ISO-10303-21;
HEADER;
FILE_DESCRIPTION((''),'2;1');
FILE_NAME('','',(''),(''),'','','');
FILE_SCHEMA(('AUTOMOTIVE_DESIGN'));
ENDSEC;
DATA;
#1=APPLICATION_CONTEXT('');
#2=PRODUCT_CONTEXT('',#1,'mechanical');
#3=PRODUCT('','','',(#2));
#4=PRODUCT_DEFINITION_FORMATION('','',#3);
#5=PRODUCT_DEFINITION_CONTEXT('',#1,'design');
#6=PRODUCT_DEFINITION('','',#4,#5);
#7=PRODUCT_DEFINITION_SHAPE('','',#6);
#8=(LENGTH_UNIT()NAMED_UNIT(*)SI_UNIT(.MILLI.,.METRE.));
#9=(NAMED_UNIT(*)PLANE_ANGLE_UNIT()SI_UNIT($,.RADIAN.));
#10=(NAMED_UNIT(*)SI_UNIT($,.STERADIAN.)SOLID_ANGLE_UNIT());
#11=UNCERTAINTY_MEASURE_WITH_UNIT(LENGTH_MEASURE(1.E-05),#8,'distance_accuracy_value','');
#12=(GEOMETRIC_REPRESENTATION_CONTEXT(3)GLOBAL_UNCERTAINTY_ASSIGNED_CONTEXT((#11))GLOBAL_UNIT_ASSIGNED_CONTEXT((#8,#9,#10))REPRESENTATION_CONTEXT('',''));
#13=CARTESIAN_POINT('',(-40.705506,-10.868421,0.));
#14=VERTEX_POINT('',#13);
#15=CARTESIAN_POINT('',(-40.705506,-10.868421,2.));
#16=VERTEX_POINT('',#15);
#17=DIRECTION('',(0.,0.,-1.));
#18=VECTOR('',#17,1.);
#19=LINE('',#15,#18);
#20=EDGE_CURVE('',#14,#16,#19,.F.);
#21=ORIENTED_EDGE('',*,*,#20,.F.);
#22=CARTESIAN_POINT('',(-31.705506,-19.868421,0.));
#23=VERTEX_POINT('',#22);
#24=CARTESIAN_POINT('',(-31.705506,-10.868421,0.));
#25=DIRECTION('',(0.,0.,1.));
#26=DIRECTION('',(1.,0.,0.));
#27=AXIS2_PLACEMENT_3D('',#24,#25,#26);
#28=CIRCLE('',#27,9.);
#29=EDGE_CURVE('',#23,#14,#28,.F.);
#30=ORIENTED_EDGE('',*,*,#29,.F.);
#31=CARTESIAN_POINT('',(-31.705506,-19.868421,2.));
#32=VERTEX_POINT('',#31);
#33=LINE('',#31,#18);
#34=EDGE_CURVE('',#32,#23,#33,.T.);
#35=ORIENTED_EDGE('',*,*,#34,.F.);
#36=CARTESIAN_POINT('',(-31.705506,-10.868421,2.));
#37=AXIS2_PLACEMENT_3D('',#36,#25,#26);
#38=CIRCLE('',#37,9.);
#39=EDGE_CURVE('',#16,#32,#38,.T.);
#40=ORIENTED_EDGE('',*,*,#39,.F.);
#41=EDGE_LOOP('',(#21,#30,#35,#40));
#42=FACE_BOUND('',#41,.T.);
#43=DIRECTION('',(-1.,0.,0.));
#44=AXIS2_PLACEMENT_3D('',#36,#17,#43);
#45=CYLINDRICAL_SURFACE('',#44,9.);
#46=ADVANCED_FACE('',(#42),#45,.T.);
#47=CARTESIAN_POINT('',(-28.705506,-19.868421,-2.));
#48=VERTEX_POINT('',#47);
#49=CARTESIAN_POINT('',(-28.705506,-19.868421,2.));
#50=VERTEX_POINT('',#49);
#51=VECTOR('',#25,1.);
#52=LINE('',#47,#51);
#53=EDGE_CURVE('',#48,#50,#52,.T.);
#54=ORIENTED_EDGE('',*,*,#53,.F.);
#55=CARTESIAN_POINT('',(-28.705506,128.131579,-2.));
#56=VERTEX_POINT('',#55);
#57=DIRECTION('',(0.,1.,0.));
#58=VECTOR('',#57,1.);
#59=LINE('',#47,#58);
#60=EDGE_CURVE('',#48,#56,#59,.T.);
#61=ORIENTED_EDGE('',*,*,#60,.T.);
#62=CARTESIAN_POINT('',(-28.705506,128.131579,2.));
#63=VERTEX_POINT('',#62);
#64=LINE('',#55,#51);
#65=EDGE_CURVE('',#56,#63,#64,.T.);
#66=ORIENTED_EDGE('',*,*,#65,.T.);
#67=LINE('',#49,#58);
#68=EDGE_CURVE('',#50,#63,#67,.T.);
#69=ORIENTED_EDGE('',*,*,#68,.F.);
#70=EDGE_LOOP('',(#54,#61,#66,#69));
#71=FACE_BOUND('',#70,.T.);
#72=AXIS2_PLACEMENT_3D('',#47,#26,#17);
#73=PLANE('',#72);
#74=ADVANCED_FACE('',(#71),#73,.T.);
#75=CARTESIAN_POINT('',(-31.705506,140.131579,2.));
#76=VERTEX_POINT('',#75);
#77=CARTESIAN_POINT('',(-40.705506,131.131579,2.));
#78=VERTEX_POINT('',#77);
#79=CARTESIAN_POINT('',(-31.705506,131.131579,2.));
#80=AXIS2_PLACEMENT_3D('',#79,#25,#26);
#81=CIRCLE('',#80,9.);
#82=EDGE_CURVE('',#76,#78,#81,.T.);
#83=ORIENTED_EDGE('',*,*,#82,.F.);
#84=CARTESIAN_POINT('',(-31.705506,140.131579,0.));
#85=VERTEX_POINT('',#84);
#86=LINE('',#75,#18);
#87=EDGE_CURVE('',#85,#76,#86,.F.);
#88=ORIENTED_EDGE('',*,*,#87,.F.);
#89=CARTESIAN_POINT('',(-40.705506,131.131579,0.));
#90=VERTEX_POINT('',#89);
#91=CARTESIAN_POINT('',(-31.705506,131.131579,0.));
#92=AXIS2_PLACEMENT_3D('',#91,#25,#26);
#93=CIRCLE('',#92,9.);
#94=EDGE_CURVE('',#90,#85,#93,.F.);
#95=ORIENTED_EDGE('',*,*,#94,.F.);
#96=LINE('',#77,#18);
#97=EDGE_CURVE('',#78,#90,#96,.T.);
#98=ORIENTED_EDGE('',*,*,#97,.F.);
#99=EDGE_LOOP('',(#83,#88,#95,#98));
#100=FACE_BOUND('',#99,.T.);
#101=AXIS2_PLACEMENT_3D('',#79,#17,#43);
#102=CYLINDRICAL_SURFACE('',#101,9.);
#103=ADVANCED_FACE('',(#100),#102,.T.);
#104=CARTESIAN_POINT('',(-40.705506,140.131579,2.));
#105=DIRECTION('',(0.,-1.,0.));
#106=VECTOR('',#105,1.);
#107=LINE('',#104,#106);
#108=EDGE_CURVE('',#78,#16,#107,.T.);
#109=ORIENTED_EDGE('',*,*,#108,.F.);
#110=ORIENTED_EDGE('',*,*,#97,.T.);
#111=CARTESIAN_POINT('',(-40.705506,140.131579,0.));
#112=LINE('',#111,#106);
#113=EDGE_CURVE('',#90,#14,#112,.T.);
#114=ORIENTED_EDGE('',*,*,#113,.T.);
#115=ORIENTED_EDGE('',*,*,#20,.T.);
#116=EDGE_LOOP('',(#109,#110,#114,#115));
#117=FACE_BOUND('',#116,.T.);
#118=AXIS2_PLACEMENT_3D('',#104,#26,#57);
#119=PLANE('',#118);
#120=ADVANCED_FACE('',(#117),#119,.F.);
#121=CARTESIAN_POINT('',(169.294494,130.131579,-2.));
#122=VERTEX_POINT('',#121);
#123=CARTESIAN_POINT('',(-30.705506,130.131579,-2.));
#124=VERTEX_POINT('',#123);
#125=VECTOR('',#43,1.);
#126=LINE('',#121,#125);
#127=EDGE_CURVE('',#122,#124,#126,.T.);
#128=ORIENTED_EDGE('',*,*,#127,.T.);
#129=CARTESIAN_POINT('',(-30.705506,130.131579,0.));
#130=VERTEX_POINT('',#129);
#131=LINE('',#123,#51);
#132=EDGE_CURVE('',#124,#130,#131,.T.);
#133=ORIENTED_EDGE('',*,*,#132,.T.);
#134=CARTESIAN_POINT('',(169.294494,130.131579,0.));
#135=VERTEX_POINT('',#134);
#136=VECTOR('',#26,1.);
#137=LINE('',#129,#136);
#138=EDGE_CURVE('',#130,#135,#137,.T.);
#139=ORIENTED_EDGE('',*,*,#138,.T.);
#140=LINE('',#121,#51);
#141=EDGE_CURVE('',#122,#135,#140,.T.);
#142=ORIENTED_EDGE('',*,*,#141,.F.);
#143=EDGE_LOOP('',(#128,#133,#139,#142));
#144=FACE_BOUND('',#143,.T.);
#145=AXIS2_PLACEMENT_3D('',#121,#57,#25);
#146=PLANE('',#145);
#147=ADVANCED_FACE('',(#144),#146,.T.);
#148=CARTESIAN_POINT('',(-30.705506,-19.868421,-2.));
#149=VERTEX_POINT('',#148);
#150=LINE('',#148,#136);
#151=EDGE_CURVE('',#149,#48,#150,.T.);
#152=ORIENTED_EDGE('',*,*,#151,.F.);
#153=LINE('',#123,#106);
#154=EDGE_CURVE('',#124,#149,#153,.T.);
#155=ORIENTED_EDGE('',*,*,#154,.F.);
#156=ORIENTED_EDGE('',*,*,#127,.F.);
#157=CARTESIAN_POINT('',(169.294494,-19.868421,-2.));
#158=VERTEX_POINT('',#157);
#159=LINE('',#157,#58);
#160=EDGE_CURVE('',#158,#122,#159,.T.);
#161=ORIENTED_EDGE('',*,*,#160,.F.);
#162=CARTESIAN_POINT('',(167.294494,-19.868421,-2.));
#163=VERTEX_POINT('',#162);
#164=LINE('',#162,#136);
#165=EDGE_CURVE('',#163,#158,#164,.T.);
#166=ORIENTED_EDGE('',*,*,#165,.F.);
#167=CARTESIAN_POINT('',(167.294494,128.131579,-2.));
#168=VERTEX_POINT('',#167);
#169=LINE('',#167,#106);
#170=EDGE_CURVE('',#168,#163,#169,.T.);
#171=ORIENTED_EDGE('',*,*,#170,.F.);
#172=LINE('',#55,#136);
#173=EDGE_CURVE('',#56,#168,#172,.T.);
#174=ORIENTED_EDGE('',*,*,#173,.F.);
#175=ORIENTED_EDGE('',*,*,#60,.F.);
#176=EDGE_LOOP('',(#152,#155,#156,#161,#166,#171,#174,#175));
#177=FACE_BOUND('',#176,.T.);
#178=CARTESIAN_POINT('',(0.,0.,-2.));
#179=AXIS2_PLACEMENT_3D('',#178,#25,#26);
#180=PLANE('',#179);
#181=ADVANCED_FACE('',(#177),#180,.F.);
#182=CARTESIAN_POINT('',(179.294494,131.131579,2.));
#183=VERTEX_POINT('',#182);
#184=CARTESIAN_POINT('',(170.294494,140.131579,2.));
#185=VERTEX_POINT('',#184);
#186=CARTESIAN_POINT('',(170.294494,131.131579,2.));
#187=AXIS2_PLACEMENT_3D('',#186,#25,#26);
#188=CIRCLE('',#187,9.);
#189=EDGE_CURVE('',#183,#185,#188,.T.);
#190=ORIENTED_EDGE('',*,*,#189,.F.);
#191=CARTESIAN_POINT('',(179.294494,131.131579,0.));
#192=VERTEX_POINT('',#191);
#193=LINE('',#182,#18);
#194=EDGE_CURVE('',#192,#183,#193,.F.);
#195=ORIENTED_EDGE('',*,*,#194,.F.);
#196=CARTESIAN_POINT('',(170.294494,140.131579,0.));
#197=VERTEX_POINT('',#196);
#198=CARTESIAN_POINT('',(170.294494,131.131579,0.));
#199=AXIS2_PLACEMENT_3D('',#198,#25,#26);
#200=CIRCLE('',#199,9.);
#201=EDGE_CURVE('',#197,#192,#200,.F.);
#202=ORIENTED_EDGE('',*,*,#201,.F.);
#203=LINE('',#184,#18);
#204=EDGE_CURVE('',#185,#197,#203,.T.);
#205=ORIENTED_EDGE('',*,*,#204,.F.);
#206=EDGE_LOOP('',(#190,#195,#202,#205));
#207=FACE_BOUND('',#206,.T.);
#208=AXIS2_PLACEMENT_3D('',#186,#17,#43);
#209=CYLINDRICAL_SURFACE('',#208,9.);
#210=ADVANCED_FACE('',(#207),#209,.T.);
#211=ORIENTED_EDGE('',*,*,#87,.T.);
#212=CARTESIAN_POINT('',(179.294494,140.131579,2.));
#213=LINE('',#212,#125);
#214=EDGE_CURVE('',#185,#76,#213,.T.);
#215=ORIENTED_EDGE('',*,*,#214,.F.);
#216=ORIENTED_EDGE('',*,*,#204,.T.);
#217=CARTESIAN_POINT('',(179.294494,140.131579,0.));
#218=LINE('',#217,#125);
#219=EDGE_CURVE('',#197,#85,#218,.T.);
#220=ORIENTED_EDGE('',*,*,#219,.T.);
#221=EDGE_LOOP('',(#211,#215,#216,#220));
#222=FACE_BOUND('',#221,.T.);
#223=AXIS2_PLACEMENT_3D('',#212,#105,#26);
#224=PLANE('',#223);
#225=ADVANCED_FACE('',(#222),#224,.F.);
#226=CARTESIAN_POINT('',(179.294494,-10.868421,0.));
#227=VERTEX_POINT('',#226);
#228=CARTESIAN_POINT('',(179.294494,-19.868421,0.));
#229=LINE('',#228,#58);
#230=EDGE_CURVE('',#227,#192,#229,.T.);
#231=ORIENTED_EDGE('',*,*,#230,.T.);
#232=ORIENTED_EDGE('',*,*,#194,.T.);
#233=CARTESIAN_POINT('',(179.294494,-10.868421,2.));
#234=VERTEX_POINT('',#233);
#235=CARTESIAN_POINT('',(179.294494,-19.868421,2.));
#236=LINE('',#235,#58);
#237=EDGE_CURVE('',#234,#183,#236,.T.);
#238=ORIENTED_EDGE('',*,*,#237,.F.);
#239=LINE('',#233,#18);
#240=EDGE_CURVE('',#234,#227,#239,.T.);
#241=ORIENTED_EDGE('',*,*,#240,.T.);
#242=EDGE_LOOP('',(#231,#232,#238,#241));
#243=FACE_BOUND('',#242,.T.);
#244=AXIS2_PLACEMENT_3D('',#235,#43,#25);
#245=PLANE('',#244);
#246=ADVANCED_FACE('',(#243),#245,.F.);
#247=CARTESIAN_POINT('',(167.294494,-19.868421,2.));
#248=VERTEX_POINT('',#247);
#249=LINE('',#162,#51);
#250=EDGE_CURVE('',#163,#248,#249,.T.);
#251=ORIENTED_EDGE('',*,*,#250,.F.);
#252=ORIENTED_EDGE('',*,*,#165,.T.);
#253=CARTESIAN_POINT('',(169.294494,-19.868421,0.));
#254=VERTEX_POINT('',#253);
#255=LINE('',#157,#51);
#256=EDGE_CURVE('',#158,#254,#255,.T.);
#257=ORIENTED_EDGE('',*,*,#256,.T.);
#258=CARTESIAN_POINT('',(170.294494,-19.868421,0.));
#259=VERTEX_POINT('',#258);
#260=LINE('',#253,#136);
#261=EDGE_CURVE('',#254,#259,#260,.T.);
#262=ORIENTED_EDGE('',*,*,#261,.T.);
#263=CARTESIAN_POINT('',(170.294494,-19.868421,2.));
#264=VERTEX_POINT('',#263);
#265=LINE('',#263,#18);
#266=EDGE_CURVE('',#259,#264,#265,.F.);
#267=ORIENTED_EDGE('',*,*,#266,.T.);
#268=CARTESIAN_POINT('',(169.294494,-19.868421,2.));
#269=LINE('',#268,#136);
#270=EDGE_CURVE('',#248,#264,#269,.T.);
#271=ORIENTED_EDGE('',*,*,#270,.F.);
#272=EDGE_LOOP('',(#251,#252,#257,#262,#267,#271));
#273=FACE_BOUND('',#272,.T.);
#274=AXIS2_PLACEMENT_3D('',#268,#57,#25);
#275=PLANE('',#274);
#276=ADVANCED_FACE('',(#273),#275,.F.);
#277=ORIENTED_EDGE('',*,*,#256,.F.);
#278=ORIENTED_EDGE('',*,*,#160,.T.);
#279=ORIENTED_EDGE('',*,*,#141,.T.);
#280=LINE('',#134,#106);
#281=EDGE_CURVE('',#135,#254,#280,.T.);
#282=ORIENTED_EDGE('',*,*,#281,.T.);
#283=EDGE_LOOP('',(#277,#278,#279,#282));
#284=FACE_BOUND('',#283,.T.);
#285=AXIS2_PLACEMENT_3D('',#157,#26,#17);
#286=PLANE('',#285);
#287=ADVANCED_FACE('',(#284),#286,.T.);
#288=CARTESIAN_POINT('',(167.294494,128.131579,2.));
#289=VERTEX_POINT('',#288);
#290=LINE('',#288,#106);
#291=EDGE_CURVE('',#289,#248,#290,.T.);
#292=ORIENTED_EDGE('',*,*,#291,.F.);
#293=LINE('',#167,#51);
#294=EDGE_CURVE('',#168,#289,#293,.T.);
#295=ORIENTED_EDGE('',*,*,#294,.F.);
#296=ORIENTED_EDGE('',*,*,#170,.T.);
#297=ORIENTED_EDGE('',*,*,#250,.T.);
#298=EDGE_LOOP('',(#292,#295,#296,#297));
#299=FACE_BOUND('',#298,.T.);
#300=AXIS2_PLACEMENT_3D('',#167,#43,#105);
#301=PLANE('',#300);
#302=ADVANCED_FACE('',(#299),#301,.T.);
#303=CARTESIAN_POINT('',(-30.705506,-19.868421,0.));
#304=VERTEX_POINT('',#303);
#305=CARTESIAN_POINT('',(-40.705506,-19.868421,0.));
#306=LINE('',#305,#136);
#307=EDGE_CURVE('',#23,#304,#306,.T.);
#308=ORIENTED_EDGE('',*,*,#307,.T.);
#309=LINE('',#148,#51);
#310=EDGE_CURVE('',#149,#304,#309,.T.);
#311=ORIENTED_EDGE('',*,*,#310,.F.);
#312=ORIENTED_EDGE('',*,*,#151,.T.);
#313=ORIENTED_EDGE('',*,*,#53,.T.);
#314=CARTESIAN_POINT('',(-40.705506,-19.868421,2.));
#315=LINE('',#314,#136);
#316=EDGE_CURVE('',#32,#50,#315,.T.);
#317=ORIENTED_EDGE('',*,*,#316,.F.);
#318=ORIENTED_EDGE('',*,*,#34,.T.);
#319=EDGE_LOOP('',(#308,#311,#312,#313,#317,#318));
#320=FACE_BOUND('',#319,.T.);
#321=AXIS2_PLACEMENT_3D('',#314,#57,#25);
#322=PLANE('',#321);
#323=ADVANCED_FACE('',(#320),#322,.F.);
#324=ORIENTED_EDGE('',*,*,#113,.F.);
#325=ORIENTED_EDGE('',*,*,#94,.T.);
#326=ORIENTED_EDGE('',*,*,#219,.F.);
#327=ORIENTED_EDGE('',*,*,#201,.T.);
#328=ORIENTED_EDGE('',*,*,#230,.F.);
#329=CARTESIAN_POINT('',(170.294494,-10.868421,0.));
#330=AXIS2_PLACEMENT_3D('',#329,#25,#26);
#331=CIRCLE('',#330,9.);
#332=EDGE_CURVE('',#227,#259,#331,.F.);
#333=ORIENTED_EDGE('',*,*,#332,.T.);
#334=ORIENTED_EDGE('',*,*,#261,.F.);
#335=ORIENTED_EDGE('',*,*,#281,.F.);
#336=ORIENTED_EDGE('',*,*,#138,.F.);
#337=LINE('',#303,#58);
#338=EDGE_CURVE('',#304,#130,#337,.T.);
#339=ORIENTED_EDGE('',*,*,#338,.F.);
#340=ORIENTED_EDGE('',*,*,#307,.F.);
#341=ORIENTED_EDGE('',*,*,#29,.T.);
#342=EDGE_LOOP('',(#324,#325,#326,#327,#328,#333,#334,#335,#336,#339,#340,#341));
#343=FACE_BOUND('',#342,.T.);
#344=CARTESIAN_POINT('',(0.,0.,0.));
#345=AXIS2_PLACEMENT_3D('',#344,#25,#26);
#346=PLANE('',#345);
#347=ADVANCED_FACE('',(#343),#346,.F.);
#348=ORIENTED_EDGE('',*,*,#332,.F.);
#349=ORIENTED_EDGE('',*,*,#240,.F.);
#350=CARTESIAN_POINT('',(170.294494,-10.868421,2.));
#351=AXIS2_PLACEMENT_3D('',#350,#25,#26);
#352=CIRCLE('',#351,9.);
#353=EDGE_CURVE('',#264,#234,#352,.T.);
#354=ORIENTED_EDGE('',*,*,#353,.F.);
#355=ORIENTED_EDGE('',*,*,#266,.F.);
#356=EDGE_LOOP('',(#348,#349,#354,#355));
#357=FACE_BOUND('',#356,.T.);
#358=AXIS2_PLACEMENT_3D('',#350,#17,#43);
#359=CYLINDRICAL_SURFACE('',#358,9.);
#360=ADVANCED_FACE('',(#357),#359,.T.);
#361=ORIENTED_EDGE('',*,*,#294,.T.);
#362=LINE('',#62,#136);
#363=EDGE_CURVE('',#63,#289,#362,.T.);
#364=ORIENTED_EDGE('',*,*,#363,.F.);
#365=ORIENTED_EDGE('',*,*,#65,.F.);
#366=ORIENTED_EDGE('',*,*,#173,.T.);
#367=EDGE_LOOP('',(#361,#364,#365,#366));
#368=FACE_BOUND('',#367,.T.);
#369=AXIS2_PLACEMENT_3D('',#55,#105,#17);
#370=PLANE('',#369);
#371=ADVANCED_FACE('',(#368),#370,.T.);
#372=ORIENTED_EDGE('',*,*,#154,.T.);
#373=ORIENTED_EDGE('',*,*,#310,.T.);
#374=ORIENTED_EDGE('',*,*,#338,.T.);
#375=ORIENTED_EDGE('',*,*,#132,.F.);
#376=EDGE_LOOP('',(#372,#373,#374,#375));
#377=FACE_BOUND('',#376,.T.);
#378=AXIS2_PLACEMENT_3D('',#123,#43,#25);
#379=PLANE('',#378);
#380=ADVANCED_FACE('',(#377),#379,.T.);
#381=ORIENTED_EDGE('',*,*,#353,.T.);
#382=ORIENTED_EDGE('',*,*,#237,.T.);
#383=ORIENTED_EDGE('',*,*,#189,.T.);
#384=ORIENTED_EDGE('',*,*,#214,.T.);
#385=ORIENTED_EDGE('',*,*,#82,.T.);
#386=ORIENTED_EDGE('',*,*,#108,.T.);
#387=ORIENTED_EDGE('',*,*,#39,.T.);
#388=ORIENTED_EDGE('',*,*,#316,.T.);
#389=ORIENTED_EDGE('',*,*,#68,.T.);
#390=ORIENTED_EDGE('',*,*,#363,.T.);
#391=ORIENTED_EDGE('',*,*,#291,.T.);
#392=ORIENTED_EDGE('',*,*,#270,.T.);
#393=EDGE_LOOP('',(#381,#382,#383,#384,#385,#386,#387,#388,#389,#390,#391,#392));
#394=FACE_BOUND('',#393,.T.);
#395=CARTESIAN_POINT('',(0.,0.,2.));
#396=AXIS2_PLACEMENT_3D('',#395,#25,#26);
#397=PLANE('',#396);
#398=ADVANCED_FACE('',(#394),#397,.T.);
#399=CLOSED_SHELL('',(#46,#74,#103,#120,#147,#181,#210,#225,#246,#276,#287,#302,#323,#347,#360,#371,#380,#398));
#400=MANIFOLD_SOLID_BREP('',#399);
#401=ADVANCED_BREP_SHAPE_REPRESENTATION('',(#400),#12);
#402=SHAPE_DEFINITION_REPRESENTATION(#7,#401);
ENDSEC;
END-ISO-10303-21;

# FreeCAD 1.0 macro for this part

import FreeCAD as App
import Part
import Sketcher

V = App.Vector
Q = App.Units.Quantity


def edges_at(feature, points):
    """Names of the edges that pass closest to the given points."""
    edges = feature.Shape.Edges
    near = lambda p: min(range(len(edges)), key=lambda i: edges[i].distToShape(Part.Vertex(*p))[0])
    return sorted({f"Edge{near(p) + 1}" for p in points})

doc = App.newDocument("Part")
body = doc.addObject("PartDesign::Body", "Body")

# Sketch on XY plane
sketch1 = body.newObject("Sketcher::SketchObject", "Sketch")
sketch1.AttachmentSupport = (doc.getObject("XY_Plane"), [""])
sketch1.MapMode = "FlatFace"
sketch1.addGeometry([
    Part.LineSegment(V(-40.705506, -19.868421, 0), V(-30.705506, -19.868421, 0)),  # 0
    Part.LineSegment(V(-30.705506, -19.868421, 0), V(-30.705506, 130.131579, 0)),  # 1
    Part.LineSegment(V(-30.705506, 130.131579, 0), V(169.294494, 130.131579, 0)),  # 2
    Part.LineSegment(V(169.294494, 130.131579, 0), V(169.294494, -19.868421, 0)),  # 3
    Part.LineSegment(V(169.294494, -19.868421, 0), V(179.294494, -19.868421, 0)),  # 4
    Part.LineSegment(V(179.294494, -19.868421, 0), V(179.294494, 140.131579, 0)),  # 5
    Part.LineSegment(V(179.294494, 140.131579, 0), V(-40.705506, 140.131579, 0)),  # 6
    Part.LineSegment(V(-40.705506, 140.131579, 0), V(-40.705506, -19.868421, 0)),  # 7
], False)
sketch1.addConstraint([
    Sketcher.Constraint("Coincident", 0, 2, 1, 1),
    Sketcher.Constraint("Coincident", 1, 2, 2, 1),
    Sketcher.Constraint("Coincident", 2, 2, 3, 1),
    Sketcher.Constraint("Coincident", 3, 2, 4, 1),
    Sketcher.Constraint("Coincident", 4, 2, 5, 1),
    Sketcher.Constraint("Coincident", 5, 2, 6, 1),
    Sketcher.Constraint("Coincident", 6, 2, 7, 1),
    Sketcher.Constraint("Coincident", 7, 2, 0, 1),
    Sketcher.Constraint("Horizontal", 0),
    Sketcher.Constraint("Vertical", 1),
    Sketcher.Constraint("Horizontal", 2),
    Sketcher.Constraint("Vertical", 3),
    Sketcher.Constraint("Horizontal", 4),
    Sketcher.Constraint("Vertical", 5),
    Sketcher.Constraint("Horizontal", 6),
    Sketcher.Constraint("Vertical", 7),
    Sketcher.Constraint("Horizontal", 0, 2, 3, 2),
    Sketcher.Constraint("Equal", 0, 4),
    Sketcher.Constraint("DistanceX", 0, 1, 0, 2, Q("10 mm")),
    Sketcher.Constraint("DistanceX", 2, 1, 2, 2, Q("200 mm")),
    Sketcher.Constraint("DistanceY", 1, 1, 1, 2, Q("150 mm")),
    Sketcher.Constraint("DistanceY", 5, 1, 5, 2, Q("160 mm")),
    Sketcher.Constraint("DistanceY", 0, 2, -1, 1, Q("19.868421 mm")),
    Sketcher.Constraint("DistanceX", 0, 2, -1, 1, Q("30.705506 mm")),
])
pad1 = body.newObject("PartDesign::Pad", "Pad")
pad1.Profile = sketch1
pad1.Length = 2

# Sketch on XY plane
sketch2 = body.newObject("Sketcher::SketchObject", "Sketch001")
sketch2.AttachmentSupport = (doc.getObject("XY_Plane"), [""])
sketch2.MapMode = "FlatFace"
sketch2.AttachmentOffset = App.Placement(V(0, 0, 2), App.Rotation())
sketch2.addGeometry([
    Part.LineSegment(V(-30.705506, -19.868421, 0), V(-28.705506, -19.868421, 0)),  # 0
    Part.LineSegment(V(-28.705506, -19.868421, 0), V(-28.705506, 128.131579, 0)),  # 1
    Part.LineSegment(V(-28.705506, 128.131579, 0), V(167.294494, 128.131579, 0)),  # 2
    Part.LineSegment(V(167.294494, 128.131579, 0), V(167.294494, -19.868421, 0)),  # 3
    Part.LineSegment(V(167.294494, -19.868421, 0), V(169.294494, -19.868421, 0)),  # 4
    Part.LineSegment(V(169.294494, -19.868421, 0), V(169.294494, 130.131579, 0)),  # 5
    Part.LineSegment(V(169.294494, 130.131579, 0), V(-30.705506, 130.131579, 0)),  # 6
    Part.LineSegment(V(-30.705506, 130.131579, 0), V(-30.705506, -19.868421, 0)),  # 7
], False)
sketch2.addConstraint([
    Sketcher.Constraint("Coincident", 0, 2, 1, 1),
    Sketcher.Constraint("Coincident", 1, 2, 2, 1),
    Sketcher.Constraint("Coincident", 2, 2, 3, 1),
    Sketcher.Constraint("Coincident", 3, 2, 4, 1),
    Sketcher.Constraint("Coincident", 4, 2, 5, 1),
    Sketcher.Constraint("Coincident", 5, 2, 6, 1),
    Sketcher.Constraint("Coincident", 6, 2, 7, 1),
    Sketcher.Constraint("Coincident", 7, 2, 0, 1),
    Sketcher.Constraint("Horizontal", 0),
    Sketcher.Constraint("Vertical", 1),
    Sketcher.Constraint("Horizontal", 2),
    Sketcher.Constraint("Vertical", 3),
    Sketcher.Constraint("Horizontal", 4),
    Sketcher.Constraint("Vertical", 5),
    Sketcher.Constraint("Horizontal", 6),
    Sketcher.Constraint("Vertical", 7),
    Sketcher.Constraint("Horizontal", 0, 2, 3, 2),
    Sketcher.Constraint("Equal", 0, 4),
    Sketcher.Constraint("DistanceX", 0, 1, 0, 2, Q("2 mm")),
    Sketcher.Constraint("DistanceX", 2, 1, 2, 2, Q("196 mm")),
    Sketcher.Constraint("DistanceY", 1, 1, 1, 2, Q("148 mm")),
    Sketcher.Constraint("DistanceY", 5, 1, 5, 2, Q("150 mm")),
    Sketcher.Constraint("DistanceY", 0, 2, -1, 1, Q("19.868421 mm")),
    Sketcher.Constraint("DistanceX", 0, 2, -1, 1, Q("28.705506 mm")),
])
pad2 = body.newObject("PartDesign::Pad", "Pad001")
pad2.Profile = sketch2
pad2.Length = 4
pad2.Reversed = True
doc.recompute()

fillet = body.newObject("PartDesign::Fillet", "Fillet")
fillet.Base = (pad2, edges_at(pad2, [
    (-40.706, 140.132, 1),
    (179.294, 140.132, 1),
    (179.294, -19.868, 1),
    (-40.706, -19.868, 1),
]))
fillet.Radius = 9

doc.recompute()
